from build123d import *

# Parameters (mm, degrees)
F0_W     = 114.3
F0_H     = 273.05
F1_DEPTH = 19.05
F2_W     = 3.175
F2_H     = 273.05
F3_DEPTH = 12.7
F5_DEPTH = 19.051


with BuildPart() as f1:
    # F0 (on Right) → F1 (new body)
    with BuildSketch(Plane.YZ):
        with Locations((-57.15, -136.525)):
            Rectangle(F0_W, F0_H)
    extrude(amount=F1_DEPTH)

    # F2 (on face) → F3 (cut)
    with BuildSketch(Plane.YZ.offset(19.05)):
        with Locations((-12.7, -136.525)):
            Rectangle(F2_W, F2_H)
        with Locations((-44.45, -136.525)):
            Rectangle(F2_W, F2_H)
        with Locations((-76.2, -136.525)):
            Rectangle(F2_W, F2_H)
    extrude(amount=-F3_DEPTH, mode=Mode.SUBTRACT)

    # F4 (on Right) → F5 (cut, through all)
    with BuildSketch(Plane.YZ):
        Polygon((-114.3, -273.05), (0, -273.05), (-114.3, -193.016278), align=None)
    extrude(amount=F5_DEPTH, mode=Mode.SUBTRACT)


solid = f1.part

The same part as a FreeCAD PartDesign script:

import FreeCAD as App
import Part
import Sketcher
from FreeCAD import Vector
Q = App.Units.Quantity


def add_polygon(sketch, points):
    """Adds a closed chain of lines whose ends are joined by coincident constraints."""
    first, n = sketch.GeometryCount, len(points)
    for a, b in zip(points, points[1:] + points[:1]):
        sketch.addGeometry(Part.LineSegment(App.Vector(*a, 0), App.Vector(*b, 0)), False)
    for i in range(n):
        sketch.addConstraint(Sketcher.Constraint("Coincident", first + i, 2, first + (i + 1) % n, 1))

doc = App.newDocument("Part")
params = doc.addObject("Spreadsheet::Sheet", "Params")
for row, (alias, value) in enumerate([
    ("sketch1_width", "4.5 in"),
    ("sketch1_height", "10.75 in"),
    ("pad1_length", "0.75 in"),
    ("sketch2_height", "10.75 in"),
    ("sketch2_width", "0.125 in"),
    ("pocket1_length", "0.5 in"),
    ("sketch3_width", "4.5 in"),
], start=1):
    params.set(f"A{row}", alias)
    params.set(f"B{row}", "=" + value)
    params.setAlias(f"B{row}", alias)

body = doc.addObject("PartDesign::Body", "Body")

sketch1 = body.newObject("Sketcher::SketchObject", "Sketch")
sketch1.AttachmentSupport = (doc.getObject("YZ_Plane"), [""])
sketch1.MapMode = "FlatFace"
add_polygon(sketch1, [(-114, 0), (-114, -273), (0, -273), (0, 0)])
sketch1.addConstraint(Sketcher.Constraint("Vertical", 0))
sketch1.addConstraint(Sketcher.Constraint("Horizontal", 1))
sketch1.addConstraint(Sketcher.Constraint("Vertical", 2))
sketch1.addConstraint(Sketcher.Constraint("Horizontal", 3))
sketch1.addConstraint(Sketcher.Constraint("Coincident", 2, 2, -1, 1))
sketch1.addConstraint(Sketcher.Constraint("DistanceX", 1, 1, 1, 2, Q("4.5 in")))
sketch1.addConstraint(Sketcher.Constraint("DistanceY", 0, 2, 0, 1, Q("10.75 in")))
sketch1.setExpression("Constraints[9]", "Params.sketch1_width")
sketch1.setExpression("Constraints[10]", "Params.sketch1_height")
pad1 = body.newObject("PartDesign::Pad", "Pad")
pad1.Profile = sketch1
pad1.setExpression("Length", "Params.pad1_length")

sketch2 = body.newObject("Sketcher::SketchObject", "Sketch001")
sketch2.AttachmentSupport = (doc.getObject("YZ_Plane"), [""])
sketch2.MapMode = "FlatFace"
sketch2.AttachmentOffset = App.Placement(Vector(0, 0, 0.75 * 25.4), App.Rotation())
add_polygon(sketch2, [(-14.3, 0), (-14.3, -273.1), (-11.1, -273.1), (-11.1, 0)])
add_polygon(sketch2, [(-46, 0), (-46, -273.1), (-42.9, -273.1), (-42.9, 0)])
add_polygon(sketch2, [(-77.8, 0), (-77.8, -273.1), (-74.6, -273.1), (-74.6, 0)])
sketch2.addConstraint(Sketcher.Constraint("Vertical", 0))
sketch2.addConstraint(Sketcher.Constraint("Horizontal", 1))
sketch2.addConstraint(Sketcher.Constraint("Vertical", 2))
sketch2.addConstraint(Sketcher.Constraint("Horizontal", 3))
sketch2.addConstraint(Sketcher.Constraint("Vertical", 4))
sketch2.addConstraint(Sketcher.Constraint("Horizontal", 5))
sketch2.addConstraint(Sketcher.Constraint("Vertical", 6))
sketch2.addConstraint(Sketcher.Constraint("Horizontal", 7))
sketch2.addConstraint(Sketcher.Constraint("Vertical", 8))
sketch2.addConstraint(Sketcher.Constraint("Horizontal", 9))
sketch2.addConstraint(Sketcher.Constraint("Vertical", 10))
sketch2.addConstraint(Sketcher.Constraint("Horizontal", 11))
sketch2.addConstraint(Sketcher.Constraint("PointOnObject", 2, 2, -1))
sketch2.addConstraint(Sketcher.Constraint("PointOnObject", 6, 2, -1))
sketch2.addConstraint(Sketcher.Constraint("PointOnObject", 10, 2, -1))
sketch2.addConstraint(Sketcher.Constraint("Horizontal", 1, 2, 4, 2))
sketch2.addConstraint(Sketcher.Constraint("Horizontal", 5, 2, 8, 2))
sketch2.addConstraint(Sketcher.Constraint("Equal", 3, 5))
sketch2.addConstraint(Sketcher.Constraint("Equal", 7, 9))
sketch2.addConstraint(Sketcher.Constraint("DistanceY", 0, 2, 0, 1, Q("10.75 in")))
sketch2.addConstraint(Sketcher.Constraint("DistanceX", 8, 2, 0, 2, Q("2.5 in")))
sketch2.addConstraint(Sketcher.Constraint("DistanceX", 1, 1, 1, 2, Q("0.125 in")))
sketch2.addConstraint(Sketcher.Constraint("DistanceX", 4, 2, 0, 2, Q("1.25 in")))
sketch2.addConstraint(Sketcher.Constraint("DistanceX", 0, 2, -1, 1, Q("0.5625 in")))
sketch2.setExpression("Constraints[31]", "Params.sketch2_height")
sketch2.setExpression("Constraints[33]", "Params.sketch2_width")
pocket1 = body.newObject("PartDesign::Pocket", "Pocket")
pocket1.Profile = sketch2
pocket1.setExpression("Length", "Params.pocket1_length")

sketch3 = body.newObject("Sketcher::SketchObject", "Sketch002")
sketch3.AttachmentSupport = (doc.getObject("YZ_Plane"), [""])
sketch3.MapMode = "FlatFace"
add_polygon(sketch3, [(-114, -273), (0, -273), (-114, -193)])
sketch3.addConstraint(Sketcher.Constraint("Horizontal", 0))
sketch3.addConstraint(Sketcher.Constraint("Vertical", 2))
sketch3.addConstraint(Sketcher.Constraint("PointOnObject", 0, 2, -2))
sketch3.addConstraint(Sketcher.Constraint("DistanceX", 0, 1, 0, 2, Q("4.5 in")))
sketch3.addConstraint(Sketcher.Constraint("Angle", 1, Q("145 deg")))
sketch3.addConstraint(Sketcher.Constraint("DistanceY", 0, 2, -1, 1, Q("10.75 in")))
sketch3.setExpression("Constraints[6]", "Params.sketch3_width")
pocket2 = body.newObject("PartDesign::Pocket", "Pocket001")
pocket2.Profile = sketch3
pocket2.Type = "ThroughAll"
pocket2.Reversed = True

doc.recompute()
